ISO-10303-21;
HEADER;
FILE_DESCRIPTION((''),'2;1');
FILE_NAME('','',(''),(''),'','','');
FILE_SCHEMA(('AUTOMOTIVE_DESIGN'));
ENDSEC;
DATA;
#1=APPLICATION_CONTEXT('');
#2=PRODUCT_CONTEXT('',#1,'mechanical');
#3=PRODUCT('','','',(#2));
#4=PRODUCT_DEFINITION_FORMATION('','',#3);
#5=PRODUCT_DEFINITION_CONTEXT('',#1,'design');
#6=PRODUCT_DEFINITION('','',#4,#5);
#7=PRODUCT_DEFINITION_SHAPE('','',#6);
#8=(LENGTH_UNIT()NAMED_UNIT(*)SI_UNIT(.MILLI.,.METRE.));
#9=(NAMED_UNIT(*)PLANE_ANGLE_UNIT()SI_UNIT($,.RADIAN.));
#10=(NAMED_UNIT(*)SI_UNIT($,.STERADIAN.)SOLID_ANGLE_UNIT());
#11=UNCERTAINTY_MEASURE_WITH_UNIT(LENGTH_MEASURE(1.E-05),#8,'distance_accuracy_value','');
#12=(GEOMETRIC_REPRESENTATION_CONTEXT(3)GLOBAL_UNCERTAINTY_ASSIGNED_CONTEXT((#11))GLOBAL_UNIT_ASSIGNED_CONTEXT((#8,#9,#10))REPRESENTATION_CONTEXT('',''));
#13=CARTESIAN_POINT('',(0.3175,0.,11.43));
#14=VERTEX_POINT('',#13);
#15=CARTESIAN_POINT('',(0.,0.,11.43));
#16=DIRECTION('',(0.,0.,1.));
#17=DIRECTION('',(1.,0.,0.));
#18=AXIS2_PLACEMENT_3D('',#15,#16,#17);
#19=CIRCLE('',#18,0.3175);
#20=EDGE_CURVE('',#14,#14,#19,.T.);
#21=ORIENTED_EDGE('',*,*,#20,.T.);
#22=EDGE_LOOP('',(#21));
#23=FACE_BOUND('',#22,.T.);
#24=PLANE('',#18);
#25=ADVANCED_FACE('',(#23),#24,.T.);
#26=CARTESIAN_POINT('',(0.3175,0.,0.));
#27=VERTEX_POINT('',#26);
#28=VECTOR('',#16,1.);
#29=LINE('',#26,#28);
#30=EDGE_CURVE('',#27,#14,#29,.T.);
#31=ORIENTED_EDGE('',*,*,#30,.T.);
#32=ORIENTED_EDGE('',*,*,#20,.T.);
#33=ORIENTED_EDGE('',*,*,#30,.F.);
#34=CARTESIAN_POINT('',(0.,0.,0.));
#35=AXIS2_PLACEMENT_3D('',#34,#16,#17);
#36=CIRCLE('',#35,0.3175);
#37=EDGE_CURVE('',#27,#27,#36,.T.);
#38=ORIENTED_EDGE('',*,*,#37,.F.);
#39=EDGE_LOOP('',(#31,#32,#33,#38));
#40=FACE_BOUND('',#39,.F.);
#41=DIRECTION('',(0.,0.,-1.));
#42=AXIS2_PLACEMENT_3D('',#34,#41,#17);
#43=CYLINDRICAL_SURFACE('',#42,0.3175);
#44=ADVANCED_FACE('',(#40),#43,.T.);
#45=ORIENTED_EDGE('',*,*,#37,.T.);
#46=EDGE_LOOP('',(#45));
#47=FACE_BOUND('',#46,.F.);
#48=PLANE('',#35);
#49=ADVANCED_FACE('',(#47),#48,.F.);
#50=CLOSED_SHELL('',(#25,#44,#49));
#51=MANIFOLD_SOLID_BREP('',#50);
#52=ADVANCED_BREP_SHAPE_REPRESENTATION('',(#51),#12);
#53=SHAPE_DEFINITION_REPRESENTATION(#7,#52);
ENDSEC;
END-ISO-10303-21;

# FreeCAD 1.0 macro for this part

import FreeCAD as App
import Part
import Sketcher
Q = App.Units.Quantity

doc = App.newDocument("Part")
body = doc.addObject("PartDesign::Body", "Body")

# Sketch on XY plane
sketch1 = body.newObject("Sketcher::SketchObject", "Sketch")
sketch1.AttachmentSupport = (doc.getObject("XY_Plane"), [""])
sketch1.MapMode = "FlatFace"
sketch1.addGeometry(Part.Circle(App.Vector(0, 0, 0), App.Vector(0, 0, 1), 0.3175), False)
sketch1.addConstraint(Sketcher.Constraint("Coincident", 0, 3, -1, 1))
sketch1.addConstraint(Sketcher.Constraint("Diameter", 0, Q("0.025 in")))
pad1 = body.newObject("PartDesign::Pad", "Pad")
pad1.Profile = sketch1
pad1.Length = Q("0.45 in")

doc.recompute()
